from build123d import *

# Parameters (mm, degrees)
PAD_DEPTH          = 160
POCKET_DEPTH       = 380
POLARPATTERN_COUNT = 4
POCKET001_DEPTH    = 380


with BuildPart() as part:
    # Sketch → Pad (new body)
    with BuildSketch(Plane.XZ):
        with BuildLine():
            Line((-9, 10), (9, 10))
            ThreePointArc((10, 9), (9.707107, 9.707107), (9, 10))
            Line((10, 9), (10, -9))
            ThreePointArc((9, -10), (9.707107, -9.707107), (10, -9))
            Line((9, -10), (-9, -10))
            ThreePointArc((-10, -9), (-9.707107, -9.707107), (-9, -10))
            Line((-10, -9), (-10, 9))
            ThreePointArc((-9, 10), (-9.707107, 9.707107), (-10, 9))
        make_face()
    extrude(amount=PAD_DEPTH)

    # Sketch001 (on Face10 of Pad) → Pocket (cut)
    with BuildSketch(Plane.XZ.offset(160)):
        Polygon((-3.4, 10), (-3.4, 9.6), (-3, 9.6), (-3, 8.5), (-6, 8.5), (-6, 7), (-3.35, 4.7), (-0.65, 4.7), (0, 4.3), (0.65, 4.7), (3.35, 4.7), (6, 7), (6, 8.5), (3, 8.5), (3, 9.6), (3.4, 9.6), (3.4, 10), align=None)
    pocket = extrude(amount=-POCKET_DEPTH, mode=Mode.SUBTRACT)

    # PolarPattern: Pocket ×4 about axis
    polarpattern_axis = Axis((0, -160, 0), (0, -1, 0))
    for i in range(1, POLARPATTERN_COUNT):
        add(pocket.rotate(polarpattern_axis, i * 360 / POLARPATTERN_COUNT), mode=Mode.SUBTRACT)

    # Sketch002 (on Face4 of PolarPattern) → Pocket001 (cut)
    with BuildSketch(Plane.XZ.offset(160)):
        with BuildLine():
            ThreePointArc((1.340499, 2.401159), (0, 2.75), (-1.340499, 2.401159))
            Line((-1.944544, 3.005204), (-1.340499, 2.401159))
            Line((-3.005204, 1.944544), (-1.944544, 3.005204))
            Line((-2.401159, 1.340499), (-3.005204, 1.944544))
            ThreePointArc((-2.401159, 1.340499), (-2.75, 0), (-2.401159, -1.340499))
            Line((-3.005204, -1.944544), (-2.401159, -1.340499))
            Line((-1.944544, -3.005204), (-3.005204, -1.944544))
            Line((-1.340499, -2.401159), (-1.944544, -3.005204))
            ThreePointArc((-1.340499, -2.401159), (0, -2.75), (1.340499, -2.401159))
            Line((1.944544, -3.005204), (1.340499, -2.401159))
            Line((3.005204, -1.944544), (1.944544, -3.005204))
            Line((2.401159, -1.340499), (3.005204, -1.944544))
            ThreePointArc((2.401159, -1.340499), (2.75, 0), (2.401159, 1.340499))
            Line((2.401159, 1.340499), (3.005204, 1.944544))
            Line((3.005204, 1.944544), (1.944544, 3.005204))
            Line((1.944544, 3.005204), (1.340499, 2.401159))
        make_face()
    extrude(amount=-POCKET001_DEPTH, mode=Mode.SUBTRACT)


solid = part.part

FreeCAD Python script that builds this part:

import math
import FreeCAD as App
import Part
import Sketcher
from FreeCAD import Vector
Q = App.Units.Quantity

doc = App.newDocument("Part")
body = doc.addObject("PartDesign::Body", "Body")

# Sketch on XZ plane
sketch1 = doc.addObject("Sketcher::SketchObject", "Sketch")
body.addObject(sketch1)
sketch1.AttachmentSupport = (doc.XZ_Plane, [""])
sketch1.MapMode = "FlatFace"
sketch1.addGeometry([
    Part.LineSegment(Vector(9, 10, 0), Vector(-9, 10, 0)),  # 0
    Part.ArcOfCircle(Part.Circle(Vector(-9, 9, 0), Vector(0, 0, 1), 1), math.radians(90), math.radians(180)),  # 1
    Part.LineSegment(Vector(-10, 9, 0), Vector(-10, -9, 0)),  # 2
    Part.ArcOfCircle(Part.Circle(Vector(-9, -9, 0), Vector(0, 0, 1), 1), math.radians(180), math.radians(270)),  # 3
    Part.LineSegment(Vector(-9, -10, 0), Vector(9, -10, 0)),  # 4
    Part.ArcOfCircle(Part.Circle(Vector(9, -9, 0), Vector(0, 0, 1), 1), math.radians(-90), math.radians(0)),  # 5
    Part.LineSegment(Vector(10, -9, 0), Vector(10, 9, 0)),  # 6
    Part.ArcOfCircle(Part.Circle(Vector(9, 9, 0), Vector(0, 0, 1), 1), math.radians(0), math.radians(90)),  # 7
], False)
sketch1.addConstraint([
    Sketcher.Constraint("Tangent", 0, 2, 1, 1),
    Sketcher.Constraint("Tangent", 1, 2, 2, 1),
    Sketcher.Constraint("Tangent", 2, 2, 3, 1),
    Sketcher.Constraint("Tangent", 3, 2, 4, 1),
    Sketcher.Constraint("Tangent", 4, 2, 5, 1),
    Sketcher.Constraint("Tangent", 5, 2, 6, 1),
    Sketcher.Constraint("Tangent", 6, 2, 7, 1),
    Sketcher.Constraint("Tangent", 7, 2, 0, 1),
    Sketcher.Constraint("Horizontal", 0),
    Sketcher.Constraint("Vertical", 2),
    Sketcher.Constraint("Horizontal", 4),
    Sketcher.Constraint("Vertical", 6),
    Sketcher.Constraint("Equal", 1, 3),
    Sketcher.Constraint("Equal", 3, 5),
    Sketcher.Constraint("Equal", 5, 7),
    Sketcher.Constraint("Symmetric", 1, 3, 5, 3, -1, 1),
    Sketcher.Constraint("Equal", 4, 2),
    Sketcher.Constraint("Radius", 1, Q("0.999999 mm")),
    Sketcher.Constraint("DistanceX", 0, 2, 0, 1, Q("18 mm")),
])
pad1 = doc.addObject("PartDesign::Pad", "Pad")
body.addObject(pad1)
pad1.Profile = sketch1
pad1.Length = 160

# Sketch on XZ plane
sketch2 = doc.addObject("Sketcher::SketchObject", "Sketch001")
body.addObject(sketch2)
sketch2.AttachmentSupport = (doc.XZ_Plane, [""])
sketch2.MapMode = "FlatFace"
sketch2.AttachmentOffset = App.Placement(Vector(0, 0, 160), App.Rotation())
sketch2.addGeometry([
    Part.LineSegment(Vector(-3.4, 10, 0), Vector(-3.4, 9.6, 0)),  # 0
    Part.LineSegment(Vector(-3.4, 9.6, 0), Vector(-3, 9.6, 0)),  # 1
    Part.LineSegment(Vector(-3, 9.6, 0), Vector(-3, 8.5, 0)),  # 2
    Part.LineSegment(Vector(-3, 8.5, 0), Vector(-6, 8.5, 0)),  # 3
    Part.LineSegment(Vector(-6, 8.5, 0), Vector(-6, 7, 0)),  # 4
    Part.LineSegment(Vector(-6, 7, 0), Vector(-3.35, 4.7, 0)),  # 5
    Part.LineSegment(Vector(-3.35, 4.7, 0), Vector(-0.65, 4.7, 0)),  # 6
    Part.LineSegment(Vector(-0.65, 4.7, 0), Vector(0, 4.3, 0)),  # 7
    Part.LineSegment(Vector(0, 4.3, 0), Vector(0.65, 4.7, 0)),  # 8
    Part.LineSegment(Vector(0.65, 4.7, 0), Vector(3.35, 4.7, 0)),  # 9
    Part.LineSegment(Vector(3.35, 4.7, 0), Vector(6, 7, 0)),  # 10
    Part.LineSegment(Vector(6, 7, 0), Vector(6, 8.5, 0)),  # 11
    Part.LineSegment(Vector(6, 8.5, 0), Vector(3, 8.5, 0)),  # 12
    Part.LineSegment(Vector(3, 8.5, 0), Vector(3, 9.6, 0)),  # 13
    Part.LineSegment(Vector(3, 9.6, 0), Vector(3.4, 9.6, 0)),  # 14
    Part.LineSegment(Vector(3.4, 9.6, 0), Vector(3.4, 10, 0)),  # 15
    Part.LineSegment(Vector(3.4, 10, 0), Vector(-3.4, 10, 0)),  # 16
], False)
sketch2.addConstraint([
    Sketcher.Constraint("Coincident", 0, 2, 1, 1),
    Sketcher.Constraint("Coincident", 1, 2, 2, 1),
    Sketcher.Constraint("Coincident", 2, 2, 3, 1),
    Sketcher.Constraint("Coincident", 3, 2, 4, 1),
    Sketcher.Constraint("Coincident", 4, 2, 5, 1),
    Sketcher.Constraint("Coincident", 5, 2, 6, 1),
    Sketcher.Constraint("Coincident", 6, 2, 7, 1),
    Sketcher.Constraint("Coincident", 7, 2, 8, 1),
    Sketcher.Constraint("Coincident", 8, 2, 9, 1),
    Sketcher.Constraint("Coincident", 9, 2, 10, 1),
    Sketcher.Constraint("Coincident", 10, 2, 11, 1),
    Sketcher.Constraint("Coincident", 11, 2, 12, 1),
    Sketcher.Constraint("Coincident", 12, 2, 13, 1),
    Sketcher.Constraint("Coincident", 13, 2, 14, 1),
    Sketcher.Constraint("Coincident", 14, 2, 15, 1),
    Sketcher.Constraint("Coincident", 15, 2, 16, 1),
    Sketcher.Constraint("Coincident", 16, 2, 0, 1),
    Sketcher.Constraint("Vertical", 0),
    Sketcher.Constraint("Horizontal", 1),
    Sketcher.Constraint("Vertical", 2),
    Sketcher.Constraint("Horizontal", 3),
    Sketcher.Constraint("Vertical", 4),
    Sketcher.Constraint("Horizontal", 6),
    Sketcher.Constraint("Horizontal", 9),
    Sketcher.Constraint("Vertical", 11),
    Sketcher.Constraint("Horizontal", 12),
    Sketcher.Constraint("Vertical", 13),
    Sketcher.Constraint("Horizontal", 14),
    Sketcher.Constraint("Vertical", 15),
    Sketcher.Constraint("Horizontal", 16),
    Sketcher.Constraint("Symmetric", 6, 2, 8, 2, -2),
    Sketcher.Constraint("Symmetric", 4, 2, 10, 2, -2),
    Sketcher.Constraint("Symmetric", 2, 2, 12, 2, -2),
    Sketcher.Constraint("Symmetric", 0, 2, 14, 2, -2),
    Sketcher.Constraint("PointOnObject", 7, 2, -2),
    Sketcher.Constraint("Equal", 6, 9),
    Sketcher.Constraint("Equal", 14, 0),
    Sketcher.Constraint("DistanceX", 3, 2, 3, 1, Q("3 mm")),
    Sketcher.Constraint("DistanceX", 1, 1, 1, 2, Q("0.4 mm")),
    Sketcher.Constraint("DistanceX", 6, 1, 6, 2, Q("2.7 mm")),
    Sketcher.Constraint("DistanceX", 16, 2, 16, 1, Q("6.8 mm")),
    Sketcher.Constraint("DistanceY", 2, 2, 2, 1, Q("1.1 mm")),
    Sketcher.Constraint("DistanceY", 4, 2, 4, 1, Q("1.5 mm")),
    Sketcher.Constraint("DistanceY", -1, 1, 4, 2, Q("7 mm")),
    Sketcher.Constraint("DistanceX", 5, 2, 8, 2, Q("4 mm")),
    Sketcher.Constraint("DistanceY", -1, 1, 5, 2, Q("4.7 mm")),
    Sketcher.Constraint("DistanceY", -1, 1, 7, 2, Q("4.3 mm")),
])
pocket1 = doc.addObject("PartDesign::Pocket", "Pocket")
body.addObject(pocket1)
pocket1.Profile = sketch2
pocket1.Length = 380
doc.recompute()

polarpattern = doc.addObject("PartDesign::PolarPattern", "PolarPattern")
body.addObject(polarpattern)
polarpattern.Originals = [pocket1]
polarpattern.Axis = (doc.Y_Axis, [""])
polarpattern.Angle = 360
polarpattern.Occurrences = 4
body.Tip = polarpattern

# Sketch on XZ plane
sketch3 = doc.addObject("Sketcher::SketchObject", "Sketch002")
body.addObject(sketch3)
sketch3.AttachmentSupport = (doc.XZ_Plane, [""])
sketch3.MapMode = "FlatFace"
sketch3.AttachmentOffset = App.Placement(Vector(0, 0, 160), App.Rotation())
sketch3.addGeometry([
    Part.ArcOfCircle(Part.Circle(Vector(0, 0, 0), Vector(0, 0, 1), 2.8), math.radians(61), math.radians(119)),  # 0
    Part.LineSegment(Vector(-1.3, 2.4, 0), Vector(-1.9, 3, 0)),  # 1
    Part.LineSegment(Vector(-1.9, 3, 0), Vector(-3, 1.9, 0)),  # 2
    Part.LineSegment(Vector(-3, 1.9, 0), Vector(-2.4, 1.3, 0)),  # 3
    Part.ArcOfCircle(Part.Circle(Vector(0, 0, 0), Vector(0, 0, 1), 2.8), math.radians(151), math.radians(209)),  # 4
    Part.LineSegment(Vector(-2.4, -1.3, 0), Vector(-3, -1.9, 0)),  # 5
    Part.LineSegment(Vector(-3, -1.9, 0), Vector(-1.9, -3, 0)),  # 6
    Part.LineSegment(Vector(-1.9, -3, 0), Vector(-1.3, -2.4, 0)),  # 7
    Part.ArcOfCircle(Part.Circle(Vector(0, 0, 0), Vector(0, 0, 1), 2.8), math.radians(-119), math.radians(-61)),  # 8
    Part.LineSegment(Vector(1.3, -2.4, 0), Vector(1.9, -3, 0)),  # 9
    Part.LineSegment(Vector(1.9, -3, 0), Vector(3, -1.9, 0)),  # 10
    Part.LineSegment(Vector(3, -1.9, 0), Vector(2.4, -1.3, 0)),  # 11
    Part.ArcOfCircle(Part.Circle(Vector(0, 0, 0), Vector(0, 0, 1), 2.8), math.radians(-29), math.radians(29)),  # 12
    Part.LineSegment(Vector(2.4, 1.3, 0), Vector(3, 1.9, 0)),  # 13
    Part.LineSegment(Vector(3, 1.9, 0), Vector(1.9, 3, 0)),  # 14
    Part.LineSegment(Vector(1.9, 3, 0), Vector(1.3, 2.4, 0)),  # 15
], False)
sketch3.addConstraint([
    Sketcher.Constraint("Coincident", 0, 2, 1, 1),
    Sketcher.Constraint("Coincident", 1, 2, 2, 1),
    Sketcher.Constraint("Coincident", 2, 2, 3, 1),
    Sketcher.Constraint("Coincident", 3, 2, 4, 1),
    Sketcher.Constraint("Coincident", 4, 2, 5, 1),
    Sketcher.Constraint("Coincident", 5, 2, 6, 1),
    Sketcher.Constraint("Coincident", 6, 2, 7, 1),
    Sketcher.Constraint("Coincident", 7, 2, 8, 1),
    Sketcher.Constraint("Coincident", 8, 2, 9, 1),
    Sketcher.Constraint("Coincident", 9, 2, 10, 1),
    Sketcher.Constraint("Coincident", 10, 2, 11, 1),
    Sketcher.Constraint("Coincident", 11, 2, 12, 1),
    Sketcher.Constraint("Coincident", 12, 2, 13, 1),
    Sketcher.Constraint("Coincident", 13, 2, 14, 1),
    Sketcher.Constraint("Coincident", 14, 2, 15, 1),
    Sketcher.Constraint("Coincident", 15, 2, 0, 1),
    Sketcher.Constraint("Coincident", 0, 3, -1, 1),
    Sketcher.Constraint("Coincident", 4, 3, -1, 1),
    Sketcher.Constraint("Coincident", 8, 3, -1, 1),
    Sketcher.Constraint("Coincident", 12, 3, -1, 1),
    Sketcher.Constraint("Equal", 0, 4),
    Sketcher.Constraint("Equal", 4, 8),
    Sketcher.Constraint("Equal", 8, 12),
    Sketcher.Constraint("Symmetric", 1, 2, 9, 2, -1, 1),
    Sketcher.Constraint("Symmetric", 2, 2, 10, 2, -1, 1),
    Sketcher.Constraint("Symmetric", 5, 2, 13, 2, -1, 1),
    Sketcher.Constraint("Symmetric", 6, 2, 14, 2, -1, 1),
    Sketcher.Constraint("Symmetric", 6, 2, 9, 2, -2),
    Sketcher.Constraint("Symmetric", 5, 2, 10, 2, -2),
    Sketcher.Constraint("Perpendicular", 1, 2),
    Sketcher.Constraint("Perpendicular", 2, 3),
    Sketcher.Constraint("Perpendicular", 3, 5),
    Sketcher.Constraint("Perpendicular", 5, 6),
    Sketcher.Constraint("Perpendicular", 6, 7),
    Sketcher.Constraint("Perpendicular", 7, 9),
    Sketcher.Constraint("Perpendicular", 10, 11),
    Sketcher.Constraint("Perpendicular", 11, 13),
    Sketcher.Constraint("Perpendicular", 14, 15),
    Sketcher.Constraint("Equal", 1, 3),
    Sketcher.Constraint("Distance", 2, Q("1.5 mm")),
    Sketcher.Constraint("Radius", 0, Q("2.750003 mm")),
    Sketcher.Constraint("DistanceY", 8, 3, 1, 2, Q("3.005201 mm")),
])
pocket2 = doc.addObject("PartDesign::Pocket", "Pocket001")
body.addObject(pocket2)
pocket2.Profile = sketch3
pocket2.Length = 380

doc.recompute()
